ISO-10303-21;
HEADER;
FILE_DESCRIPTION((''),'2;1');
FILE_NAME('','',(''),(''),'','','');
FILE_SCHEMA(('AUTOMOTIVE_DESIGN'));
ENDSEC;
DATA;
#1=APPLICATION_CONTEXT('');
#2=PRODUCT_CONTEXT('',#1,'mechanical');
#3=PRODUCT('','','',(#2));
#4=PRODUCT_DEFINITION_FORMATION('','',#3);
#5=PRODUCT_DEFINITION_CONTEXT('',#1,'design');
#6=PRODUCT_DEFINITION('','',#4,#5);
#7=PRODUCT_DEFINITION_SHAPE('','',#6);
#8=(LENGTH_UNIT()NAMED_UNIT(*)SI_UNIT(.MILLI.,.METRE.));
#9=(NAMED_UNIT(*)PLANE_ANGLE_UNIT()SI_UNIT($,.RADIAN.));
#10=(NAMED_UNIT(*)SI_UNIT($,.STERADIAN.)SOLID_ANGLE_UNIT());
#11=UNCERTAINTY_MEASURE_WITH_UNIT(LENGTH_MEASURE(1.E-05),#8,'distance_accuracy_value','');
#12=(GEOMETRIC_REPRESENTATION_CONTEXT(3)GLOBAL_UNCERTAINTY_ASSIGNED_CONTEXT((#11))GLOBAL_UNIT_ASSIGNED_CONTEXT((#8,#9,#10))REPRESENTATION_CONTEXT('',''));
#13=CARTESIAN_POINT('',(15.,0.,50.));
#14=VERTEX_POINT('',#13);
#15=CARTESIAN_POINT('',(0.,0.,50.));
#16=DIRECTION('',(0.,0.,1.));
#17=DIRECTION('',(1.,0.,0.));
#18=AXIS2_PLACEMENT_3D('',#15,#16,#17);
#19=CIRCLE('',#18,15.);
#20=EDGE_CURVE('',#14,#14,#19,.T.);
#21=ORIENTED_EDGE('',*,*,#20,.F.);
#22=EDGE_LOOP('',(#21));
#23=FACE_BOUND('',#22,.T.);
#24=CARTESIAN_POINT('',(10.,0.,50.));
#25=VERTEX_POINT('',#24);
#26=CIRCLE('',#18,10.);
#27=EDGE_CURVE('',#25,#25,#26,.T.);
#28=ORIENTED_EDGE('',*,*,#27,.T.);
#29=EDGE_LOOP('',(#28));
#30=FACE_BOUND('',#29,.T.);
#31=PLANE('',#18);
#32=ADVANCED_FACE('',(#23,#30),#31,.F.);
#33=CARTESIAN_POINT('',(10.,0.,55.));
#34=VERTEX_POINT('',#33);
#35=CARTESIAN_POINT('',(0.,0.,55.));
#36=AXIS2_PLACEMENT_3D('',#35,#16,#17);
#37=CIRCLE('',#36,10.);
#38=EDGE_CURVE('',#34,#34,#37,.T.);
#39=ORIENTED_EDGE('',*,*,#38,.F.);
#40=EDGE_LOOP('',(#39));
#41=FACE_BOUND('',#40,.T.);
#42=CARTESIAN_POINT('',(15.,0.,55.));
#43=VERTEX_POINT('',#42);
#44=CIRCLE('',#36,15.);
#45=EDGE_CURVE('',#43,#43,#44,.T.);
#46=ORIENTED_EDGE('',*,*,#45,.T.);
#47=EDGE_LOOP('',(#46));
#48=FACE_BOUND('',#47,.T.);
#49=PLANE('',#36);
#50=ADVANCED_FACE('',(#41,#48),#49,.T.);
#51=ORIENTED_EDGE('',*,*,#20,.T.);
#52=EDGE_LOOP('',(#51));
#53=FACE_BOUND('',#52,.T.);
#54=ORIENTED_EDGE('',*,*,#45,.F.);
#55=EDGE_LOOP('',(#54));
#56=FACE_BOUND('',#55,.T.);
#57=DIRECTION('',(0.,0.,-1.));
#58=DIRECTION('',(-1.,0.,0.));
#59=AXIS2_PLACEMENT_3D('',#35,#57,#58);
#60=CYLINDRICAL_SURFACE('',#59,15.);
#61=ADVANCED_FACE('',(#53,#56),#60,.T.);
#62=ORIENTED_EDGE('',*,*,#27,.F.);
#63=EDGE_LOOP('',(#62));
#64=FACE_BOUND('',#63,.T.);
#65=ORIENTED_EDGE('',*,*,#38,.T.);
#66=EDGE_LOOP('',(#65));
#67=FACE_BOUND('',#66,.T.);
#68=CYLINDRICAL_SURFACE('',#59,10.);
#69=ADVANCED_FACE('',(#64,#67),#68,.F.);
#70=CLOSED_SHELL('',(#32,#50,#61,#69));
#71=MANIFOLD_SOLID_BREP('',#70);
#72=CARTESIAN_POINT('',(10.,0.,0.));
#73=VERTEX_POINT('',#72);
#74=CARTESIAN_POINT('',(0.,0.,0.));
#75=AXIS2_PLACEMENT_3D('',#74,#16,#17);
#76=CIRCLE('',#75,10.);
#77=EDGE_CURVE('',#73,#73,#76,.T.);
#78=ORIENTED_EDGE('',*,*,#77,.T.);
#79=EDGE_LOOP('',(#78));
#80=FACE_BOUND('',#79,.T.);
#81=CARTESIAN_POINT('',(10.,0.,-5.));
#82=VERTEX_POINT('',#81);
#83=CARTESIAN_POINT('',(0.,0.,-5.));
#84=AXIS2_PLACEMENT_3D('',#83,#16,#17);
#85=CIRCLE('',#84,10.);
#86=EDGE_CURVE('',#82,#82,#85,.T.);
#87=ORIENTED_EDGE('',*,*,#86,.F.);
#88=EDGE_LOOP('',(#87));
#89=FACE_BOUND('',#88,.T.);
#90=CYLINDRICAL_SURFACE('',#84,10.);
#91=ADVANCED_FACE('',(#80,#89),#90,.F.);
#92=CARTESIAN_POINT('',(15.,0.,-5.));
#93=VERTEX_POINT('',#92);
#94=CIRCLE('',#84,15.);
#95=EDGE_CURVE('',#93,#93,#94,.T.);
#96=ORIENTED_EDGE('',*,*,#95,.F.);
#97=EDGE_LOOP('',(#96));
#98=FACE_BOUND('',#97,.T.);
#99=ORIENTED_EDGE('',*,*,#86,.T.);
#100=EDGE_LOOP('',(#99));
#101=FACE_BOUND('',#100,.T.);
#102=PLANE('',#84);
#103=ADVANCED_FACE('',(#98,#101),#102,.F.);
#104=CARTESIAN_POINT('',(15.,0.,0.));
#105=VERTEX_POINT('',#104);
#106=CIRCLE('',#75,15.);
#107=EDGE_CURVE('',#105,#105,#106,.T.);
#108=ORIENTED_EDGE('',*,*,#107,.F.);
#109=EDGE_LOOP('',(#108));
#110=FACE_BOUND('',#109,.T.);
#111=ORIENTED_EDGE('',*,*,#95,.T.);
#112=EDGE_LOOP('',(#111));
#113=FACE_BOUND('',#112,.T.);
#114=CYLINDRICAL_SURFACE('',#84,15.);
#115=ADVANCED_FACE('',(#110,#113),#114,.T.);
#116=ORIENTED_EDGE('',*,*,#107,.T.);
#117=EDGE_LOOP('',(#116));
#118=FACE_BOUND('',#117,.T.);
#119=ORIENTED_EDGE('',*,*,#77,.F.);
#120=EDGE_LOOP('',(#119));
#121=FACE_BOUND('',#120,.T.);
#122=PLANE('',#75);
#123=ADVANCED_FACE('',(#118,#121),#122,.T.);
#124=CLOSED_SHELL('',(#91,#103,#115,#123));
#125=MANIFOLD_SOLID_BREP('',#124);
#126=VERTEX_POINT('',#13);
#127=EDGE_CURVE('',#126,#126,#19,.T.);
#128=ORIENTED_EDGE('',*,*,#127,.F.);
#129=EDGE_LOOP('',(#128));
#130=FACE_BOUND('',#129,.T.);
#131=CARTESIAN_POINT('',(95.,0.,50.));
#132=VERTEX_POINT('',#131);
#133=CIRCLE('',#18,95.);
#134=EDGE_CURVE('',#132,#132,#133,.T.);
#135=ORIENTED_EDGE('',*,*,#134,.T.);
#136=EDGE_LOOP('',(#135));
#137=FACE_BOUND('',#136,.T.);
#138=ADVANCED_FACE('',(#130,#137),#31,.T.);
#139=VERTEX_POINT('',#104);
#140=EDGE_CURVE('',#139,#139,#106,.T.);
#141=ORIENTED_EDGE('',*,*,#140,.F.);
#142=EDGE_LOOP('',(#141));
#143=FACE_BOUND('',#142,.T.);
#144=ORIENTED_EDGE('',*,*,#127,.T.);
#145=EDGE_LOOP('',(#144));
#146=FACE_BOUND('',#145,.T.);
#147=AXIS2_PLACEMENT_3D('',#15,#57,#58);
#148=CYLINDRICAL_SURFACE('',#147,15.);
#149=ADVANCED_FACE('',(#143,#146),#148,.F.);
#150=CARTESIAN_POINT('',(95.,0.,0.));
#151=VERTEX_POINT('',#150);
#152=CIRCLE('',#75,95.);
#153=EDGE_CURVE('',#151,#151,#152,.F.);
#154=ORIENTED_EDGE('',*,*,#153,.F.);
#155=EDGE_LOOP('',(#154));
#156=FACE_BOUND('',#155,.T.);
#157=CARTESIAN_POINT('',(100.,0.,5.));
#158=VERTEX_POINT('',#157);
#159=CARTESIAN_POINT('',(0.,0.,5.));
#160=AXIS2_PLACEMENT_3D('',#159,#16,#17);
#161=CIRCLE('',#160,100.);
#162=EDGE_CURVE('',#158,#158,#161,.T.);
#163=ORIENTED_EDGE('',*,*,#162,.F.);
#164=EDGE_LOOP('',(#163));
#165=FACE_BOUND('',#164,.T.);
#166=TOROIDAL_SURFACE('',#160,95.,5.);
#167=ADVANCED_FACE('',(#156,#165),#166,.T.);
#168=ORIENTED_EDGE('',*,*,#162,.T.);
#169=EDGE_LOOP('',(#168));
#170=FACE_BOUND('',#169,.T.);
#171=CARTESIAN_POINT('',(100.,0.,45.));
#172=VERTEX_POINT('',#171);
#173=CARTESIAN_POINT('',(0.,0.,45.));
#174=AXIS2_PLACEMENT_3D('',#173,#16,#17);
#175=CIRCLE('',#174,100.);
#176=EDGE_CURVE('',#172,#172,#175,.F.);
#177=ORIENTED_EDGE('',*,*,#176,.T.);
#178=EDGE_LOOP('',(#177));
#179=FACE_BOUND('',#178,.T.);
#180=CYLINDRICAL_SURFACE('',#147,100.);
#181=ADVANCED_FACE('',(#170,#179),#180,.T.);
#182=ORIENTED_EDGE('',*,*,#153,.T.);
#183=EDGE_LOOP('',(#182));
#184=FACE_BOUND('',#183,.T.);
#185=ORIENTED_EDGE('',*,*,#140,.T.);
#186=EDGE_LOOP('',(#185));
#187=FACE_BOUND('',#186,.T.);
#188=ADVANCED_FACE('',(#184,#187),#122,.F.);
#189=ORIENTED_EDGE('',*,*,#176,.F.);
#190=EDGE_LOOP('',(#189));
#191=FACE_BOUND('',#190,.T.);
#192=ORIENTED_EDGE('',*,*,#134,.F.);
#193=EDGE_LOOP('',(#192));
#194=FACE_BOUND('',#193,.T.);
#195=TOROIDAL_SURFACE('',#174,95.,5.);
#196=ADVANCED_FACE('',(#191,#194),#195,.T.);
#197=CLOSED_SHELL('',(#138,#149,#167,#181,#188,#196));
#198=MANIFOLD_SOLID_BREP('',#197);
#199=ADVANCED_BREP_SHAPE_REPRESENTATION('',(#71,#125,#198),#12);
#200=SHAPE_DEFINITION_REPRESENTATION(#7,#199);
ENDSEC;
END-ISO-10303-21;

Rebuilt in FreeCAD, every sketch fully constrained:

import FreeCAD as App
import Part
import Sketcher
Q = App.Units.Quantity


def edges_at(feature, points):
    """Names of the edges that pass closest to the given points."""
    edges = feature.Shape.Edges
    near = lambda p: min(range(len(edges)), key=lambda i: edges[i].distToShape(Part.Vertex(*p))[0])
    return sorted({f"Edge{near(p) + 1}" for p in points})

doc = App.newDocument("Part")
body = doc.addObject("PartDesign::Body", "Body")

sketch1 = body.newObject("Sketcher::SketchObject", "Sketch")
sketch1.AttachmentSupport = (doc.getObject("XY_Plane"), [""])
sketch1.MapMode = "FlatFace"
sketch1.addGeometry([
    Part.Circle(App.Vector(0, 0, 0), App.Vector(0, 0, 1), 100),
    Part.Circle(App.Vector(0, 0, 0), App.Vector(0, 0, 1), 15),
], False)
sketch1.addConstraint([
    Sketcher.Constraint("Coincident", 0, 3, -1, 1),
    Sketcher.Constraint("Coincident", 1, 3, -1, 1),
    Sketcher.Constraint("Diameter", 0, Q("200 mm")),
    Sketcher.Constraint("Diameter", 1, Q("30 mm")),
])
pad1 = body.newObject("PartDesign::Pad", "Pad")
pad1.Profile = sketch1
pad1.Length = 50
doc.recompute()

fillet = body.newObject("PartDesign::Fillet", "Fillet")
fillet.Base = (pad1, edges_at(pad1, [(-100, 0, 50), (-100, 0, 0)]))
fillet.Radius = 5
body2 = doc.addObject("PartDesign::Body", "Body001")

sketch2 = body2.newObject("Sketcher::SketchObject", "Sketch001")
sketch2.AttachmentSupport = (doc.getObject("XY_Plane001"), [""])
sketch2.MapMode = "FlatFace"
sketch2.addGeometry([
    Part.Circle(App.Vector(0, 0, 0), App.Vector(0, 0, 1), 15),
    Part.Circle(App.Vector(0, 0, 0), App.Vector(0, 0, 1), 10),
], False)
sketch2.addConstraint([
    Sketcher.Constraint("Coincident", 0, 3, -1, 1),
    Sketcher.Constraint("Coincident", 1, 3, -1, 1),
    Sketcher.Constraint("Diameter", 0, Q("30 mm")),
    Sketcher.Constraint("Diameter", 1, Q("20 mm")),
])
pad2 = body2.newObject("PartDesign::Pad", "Pad001")
pad2.Profile = sketch2
pad2.Length = 5
pad2.Reversed = True
body3 = doc.addObject("PartDesign::Body", "Body002")

sketch3 = body3.newObject("Sketcher::SketchObject", "Sketch002")
sketch3.AttachmentSupport = (doc.getObject("XY_Plane002"), [""])
sketch3.MapMode = "FlatFace"
sketch3.AttachmentOffset = App.Placement(App.Vector(0, 0, 50), App.Rotation())
sketch3.addGeometry([
    Part.Circle(App.Vector(0, 0, 0), App.Vector(0, 0, 1), 15),
    Part.Circle(App.Vector(0, 0, 0), App.Vector(0, 0, 1), 10),
], False)
sketch3.addConstraint([
    Sketcher.Constraint("Coincident", 0, 3, -1, 1),
    Sketcher.Constraint("Coincident", 1, 3, -1, 1),
    Sketcher.Constraint("Diameter", 0, Q("30 mm")),
    Sketcher.Constraint("Diameter", 1, Q("20 mm")),
])
pad3 = body3.newObject("PartDesign::Pad", "Pad002")
pad3.Profile = sketch3
pad3.Length = 5

doc.recompute()
